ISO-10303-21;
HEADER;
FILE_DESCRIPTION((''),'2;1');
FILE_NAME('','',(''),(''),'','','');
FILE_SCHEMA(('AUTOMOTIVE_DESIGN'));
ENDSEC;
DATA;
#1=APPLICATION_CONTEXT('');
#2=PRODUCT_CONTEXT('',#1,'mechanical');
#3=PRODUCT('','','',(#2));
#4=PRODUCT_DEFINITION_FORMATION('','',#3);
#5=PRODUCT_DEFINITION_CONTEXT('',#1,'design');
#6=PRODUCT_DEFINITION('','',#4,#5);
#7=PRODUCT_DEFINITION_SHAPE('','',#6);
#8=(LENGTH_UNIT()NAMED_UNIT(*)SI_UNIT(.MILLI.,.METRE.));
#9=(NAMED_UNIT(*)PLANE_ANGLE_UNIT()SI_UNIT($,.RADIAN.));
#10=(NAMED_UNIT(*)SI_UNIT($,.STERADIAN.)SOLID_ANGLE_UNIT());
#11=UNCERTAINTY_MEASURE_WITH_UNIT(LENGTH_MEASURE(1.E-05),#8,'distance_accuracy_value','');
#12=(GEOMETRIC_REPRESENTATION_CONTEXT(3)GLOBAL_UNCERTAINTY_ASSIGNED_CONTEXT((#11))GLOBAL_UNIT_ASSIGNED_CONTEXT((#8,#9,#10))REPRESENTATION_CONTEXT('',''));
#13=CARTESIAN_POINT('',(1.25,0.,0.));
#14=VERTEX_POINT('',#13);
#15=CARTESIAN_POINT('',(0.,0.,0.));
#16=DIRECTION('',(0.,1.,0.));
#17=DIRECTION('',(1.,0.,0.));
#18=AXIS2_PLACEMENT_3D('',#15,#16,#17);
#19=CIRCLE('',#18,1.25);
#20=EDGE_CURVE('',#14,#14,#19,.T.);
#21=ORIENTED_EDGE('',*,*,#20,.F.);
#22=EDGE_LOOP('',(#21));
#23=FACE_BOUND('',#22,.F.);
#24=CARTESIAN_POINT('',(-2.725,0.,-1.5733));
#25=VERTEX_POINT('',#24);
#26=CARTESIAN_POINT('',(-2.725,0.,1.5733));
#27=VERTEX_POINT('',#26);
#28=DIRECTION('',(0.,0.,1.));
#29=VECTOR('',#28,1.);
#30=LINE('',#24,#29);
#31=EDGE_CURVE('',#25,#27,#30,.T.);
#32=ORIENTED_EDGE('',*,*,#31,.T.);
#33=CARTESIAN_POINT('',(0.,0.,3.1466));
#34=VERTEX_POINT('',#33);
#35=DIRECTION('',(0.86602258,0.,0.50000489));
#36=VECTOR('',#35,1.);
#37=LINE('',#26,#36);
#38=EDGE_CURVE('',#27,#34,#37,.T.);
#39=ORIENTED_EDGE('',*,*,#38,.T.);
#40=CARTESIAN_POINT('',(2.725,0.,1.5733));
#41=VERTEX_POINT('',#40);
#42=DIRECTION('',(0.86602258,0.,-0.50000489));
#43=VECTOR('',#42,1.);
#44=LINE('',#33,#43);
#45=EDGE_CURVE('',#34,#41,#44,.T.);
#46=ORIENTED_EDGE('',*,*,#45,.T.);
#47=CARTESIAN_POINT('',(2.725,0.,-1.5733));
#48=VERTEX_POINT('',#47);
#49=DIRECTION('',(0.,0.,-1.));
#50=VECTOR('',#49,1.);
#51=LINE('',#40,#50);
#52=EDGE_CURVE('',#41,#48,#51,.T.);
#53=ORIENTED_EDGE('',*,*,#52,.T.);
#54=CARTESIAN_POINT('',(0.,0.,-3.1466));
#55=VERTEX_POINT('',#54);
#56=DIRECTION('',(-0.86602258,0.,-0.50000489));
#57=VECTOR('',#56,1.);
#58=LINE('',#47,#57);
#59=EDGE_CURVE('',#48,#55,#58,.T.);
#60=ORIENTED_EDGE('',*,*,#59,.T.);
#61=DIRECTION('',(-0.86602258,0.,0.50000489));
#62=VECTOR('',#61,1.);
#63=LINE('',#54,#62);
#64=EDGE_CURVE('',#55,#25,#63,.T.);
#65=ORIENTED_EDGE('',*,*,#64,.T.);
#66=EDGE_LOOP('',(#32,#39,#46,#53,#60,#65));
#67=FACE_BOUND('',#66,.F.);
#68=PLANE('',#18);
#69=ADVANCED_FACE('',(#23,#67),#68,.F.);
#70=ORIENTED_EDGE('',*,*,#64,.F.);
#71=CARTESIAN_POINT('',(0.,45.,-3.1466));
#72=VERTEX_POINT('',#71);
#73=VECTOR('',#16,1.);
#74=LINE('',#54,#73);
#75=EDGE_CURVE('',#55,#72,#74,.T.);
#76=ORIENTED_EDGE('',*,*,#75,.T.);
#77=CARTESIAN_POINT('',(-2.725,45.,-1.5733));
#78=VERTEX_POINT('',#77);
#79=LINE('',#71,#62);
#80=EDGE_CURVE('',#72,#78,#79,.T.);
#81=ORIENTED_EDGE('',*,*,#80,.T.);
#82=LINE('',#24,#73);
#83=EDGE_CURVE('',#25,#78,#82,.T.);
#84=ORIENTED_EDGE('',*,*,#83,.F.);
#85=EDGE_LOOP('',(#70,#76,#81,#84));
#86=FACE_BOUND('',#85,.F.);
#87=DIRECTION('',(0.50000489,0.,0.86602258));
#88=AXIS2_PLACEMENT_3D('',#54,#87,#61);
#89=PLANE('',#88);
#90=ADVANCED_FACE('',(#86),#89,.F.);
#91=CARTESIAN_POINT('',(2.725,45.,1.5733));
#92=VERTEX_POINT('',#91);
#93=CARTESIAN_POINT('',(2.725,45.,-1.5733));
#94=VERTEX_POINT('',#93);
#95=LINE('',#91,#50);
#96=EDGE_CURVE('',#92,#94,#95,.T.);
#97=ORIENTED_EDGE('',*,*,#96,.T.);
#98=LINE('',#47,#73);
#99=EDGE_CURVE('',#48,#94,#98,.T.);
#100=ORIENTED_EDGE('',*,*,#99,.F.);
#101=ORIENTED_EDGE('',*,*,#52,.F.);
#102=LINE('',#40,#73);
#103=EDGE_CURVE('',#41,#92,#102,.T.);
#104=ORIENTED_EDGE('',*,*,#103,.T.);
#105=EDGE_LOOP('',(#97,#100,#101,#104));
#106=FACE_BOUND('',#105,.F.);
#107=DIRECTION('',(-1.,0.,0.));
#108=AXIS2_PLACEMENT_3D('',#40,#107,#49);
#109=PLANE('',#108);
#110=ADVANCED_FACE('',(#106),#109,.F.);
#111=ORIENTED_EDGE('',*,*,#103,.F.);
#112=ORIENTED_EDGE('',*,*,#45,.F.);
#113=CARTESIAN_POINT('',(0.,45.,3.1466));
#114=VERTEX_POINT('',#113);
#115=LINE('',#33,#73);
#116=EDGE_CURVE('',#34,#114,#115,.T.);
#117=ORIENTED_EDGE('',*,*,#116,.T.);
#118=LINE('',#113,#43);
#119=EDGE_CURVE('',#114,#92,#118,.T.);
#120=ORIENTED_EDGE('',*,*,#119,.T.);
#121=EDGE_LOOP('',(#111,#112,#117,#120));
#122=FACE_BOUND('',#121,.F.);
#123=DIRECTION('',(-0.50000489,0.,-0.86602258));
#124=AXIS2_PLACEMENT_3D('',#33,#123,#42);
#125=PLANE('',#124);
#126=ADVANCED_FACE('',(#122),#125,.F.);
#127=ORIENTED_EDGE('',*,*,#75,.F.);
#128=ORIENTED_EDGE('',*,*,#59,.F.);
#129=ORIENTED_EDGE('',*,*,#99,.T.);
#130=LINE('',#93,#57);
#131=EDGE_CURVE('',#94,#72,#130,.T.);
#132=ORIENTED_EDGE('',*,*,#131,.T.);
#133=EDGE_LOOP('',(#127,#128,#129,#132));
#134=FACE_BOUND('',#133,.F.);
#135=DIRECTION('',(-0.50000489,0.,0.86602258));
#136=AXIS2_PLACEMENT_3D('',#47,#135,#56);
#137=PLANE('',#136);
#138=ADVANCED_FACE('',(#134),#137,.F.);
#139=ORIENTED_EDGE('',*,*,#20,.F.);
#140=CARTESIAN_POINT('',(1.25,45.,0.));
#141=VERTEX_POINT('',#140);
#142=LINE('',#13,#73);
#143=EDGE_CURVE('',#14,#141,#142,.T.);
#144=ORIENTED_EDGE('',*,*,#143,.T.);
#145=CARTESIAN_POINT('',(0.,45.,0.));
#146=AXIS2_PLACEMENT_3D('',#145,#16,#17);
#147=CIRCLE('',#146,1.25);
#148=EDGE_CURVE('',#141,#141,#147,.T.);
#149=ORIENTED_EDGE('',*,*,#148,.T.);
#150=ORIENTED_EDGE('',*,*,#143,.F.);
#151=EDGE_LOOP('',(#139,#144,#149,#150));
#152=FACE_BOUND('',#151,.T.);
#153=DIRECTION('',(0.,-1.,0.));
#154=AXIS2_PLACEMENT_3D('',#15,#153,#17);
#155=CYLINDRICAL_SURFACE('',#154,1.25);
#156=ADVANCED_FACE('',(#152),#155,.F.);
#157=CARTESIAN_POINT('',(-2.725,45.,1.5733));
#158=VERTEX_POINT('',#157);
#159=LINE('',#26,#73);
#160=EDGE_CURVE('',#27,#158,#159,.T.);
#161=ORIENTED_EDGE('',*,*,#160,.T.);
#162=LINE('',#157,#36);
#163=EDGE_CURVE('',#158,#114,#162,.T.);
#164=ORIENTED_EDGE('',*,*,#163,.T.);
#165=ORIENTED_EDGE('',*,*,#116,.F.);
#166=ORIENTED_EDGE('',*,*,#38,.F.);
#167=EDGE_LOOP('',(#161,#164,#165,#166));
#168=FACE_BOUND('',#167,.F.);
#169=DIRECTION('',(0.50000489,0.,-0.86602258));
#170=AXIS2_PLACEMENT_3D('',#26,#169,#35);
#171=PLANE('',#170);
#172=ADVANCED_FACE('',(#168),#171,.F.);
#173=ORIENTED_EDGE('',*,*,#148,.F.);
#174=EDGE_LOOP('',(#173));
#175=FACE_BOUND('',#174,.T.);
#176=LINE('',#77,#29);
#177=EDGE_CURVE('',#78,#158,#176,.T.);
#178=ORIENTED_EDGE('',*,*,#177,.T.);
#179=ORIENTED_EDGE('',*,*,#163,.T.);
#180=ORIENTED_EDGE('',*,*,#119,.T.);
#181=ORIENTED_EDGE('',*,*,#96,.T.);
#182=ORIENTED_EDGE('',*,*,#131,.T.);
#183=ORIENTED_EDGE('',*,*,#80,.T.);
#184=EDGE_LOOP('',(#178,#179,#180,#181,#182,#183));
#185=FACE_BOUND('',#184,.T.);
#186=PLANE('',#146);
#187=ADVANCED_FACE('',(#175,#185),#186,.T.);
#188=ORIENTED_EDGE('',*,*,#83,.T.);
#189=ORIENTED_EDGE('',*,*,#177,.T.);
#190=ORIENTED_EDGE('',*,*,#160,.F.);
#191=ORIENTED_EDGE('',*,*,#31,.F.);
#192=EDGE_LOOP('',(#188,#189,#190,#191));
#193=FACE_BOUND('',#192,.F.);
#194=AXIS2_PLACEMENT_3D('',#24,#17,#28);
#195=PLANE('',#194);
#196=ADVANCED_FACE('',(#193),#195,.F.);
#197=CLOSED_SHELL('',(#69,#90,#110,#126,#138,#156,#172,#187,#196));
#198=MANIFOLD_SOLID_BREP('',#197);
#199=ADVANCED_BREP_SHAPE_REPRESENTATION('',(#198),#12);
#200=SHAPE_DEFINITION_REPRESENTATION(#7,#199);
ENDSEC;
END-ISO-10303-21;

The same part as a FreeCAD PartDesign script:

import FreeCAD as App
import Part
import Sketcher
from FreeCAD import Vector
Q = App.Units.Quantity

doc = App.newDocument("Part")
body = doc.addObject("PartDesign::Body", "Body")

# Sketch on XZ plane
sketch1 = body.newObject("Sketcher::SketchObject", "Sketch")
sketch1.AttachmentSupport = (doc.getObject("XZ_Plane"), [""])
sketch1.MapMode = "FlatFace"
sketch1.addGeometry(Part.LineSegment(Vector(2.7, 1.6, 0), Vector(2.7, -1.6, 0)), False)
sketch1.addGeometry(Part.LineSegment(Vector(2.7, -1.6, 0), Vector(0, -3.1, 0)), False)
sketch1.addGeometry(Part.LineSegment(Vector(0, -3.1, 0), Vector(-2.7, -1.6, 0)), False)
sketch1.addGeometry(Part.LineSegment(Vector(-2.7, -1.6, 0), Vector(-2.7, 1.6, 0)), False)
sketch1.addGeometry(Part.LineSegment(Vector(-2.7, 1.6, 0), Vector(0, 3.1, 0)), False)
sketch1.addGeometry(Part.LineSegment(Vector(0, 3.1, 0), Vector(2.7, 1.6, 0)), False)
sketch1.addGeometry(Part.Circle(Vector(0, 0, 0), Vector(0, 0, 1), 1.2), False)
sketch1.addConstraint(Sketcher.Constraint("Coincident", 0, 2, 1, 1))
sketch1.addConstraint(Sketcher.Constraint("Coincident", 1, 2, 2, 1))
sketch1.addConstraint(Sketcher.Constraint("Coincident", 2, 2, 3, 1))
sketch1.addConstraint(Sketcher.Constraint("Coincident", 3, 2, 4, 1))
sketch1.addConstraint(Sketcher.Constraint("Coincident", 4, 2, 5, 1))
sketch1.addConstraint(Sketcher.Constraint("Coincident", 5, 2, 0, 1))
sketch1.addConstraint(Sketcher.Constraint("Vertical", 0))
sketch1.addConstraint(Sketcher.Constraint("Vertical", 3))
sketch1.addConstraint(Sketcher.Constraint("Coincident", 6, 3, -1, 1))
sketch1.addConstraint(Sketcher.Constraint("Symmetric", 0, 2, 3, 2, -1, 1))
sketch1.addConstraint(Sketcher.Constraint("Symmetric", 1, 2, 4, 2, -1, 1))
sketch1.addConstraint(Sketcher.Constraint("PointOnObject", 1, 2, -2))
sketch1.addConstraint(Sketcher.Constraint("Parallel", 2, 5))
sketch1.addConstraint(Sketcher.Constraint("Horizontal", 0, 2, 2, 2))
sketch1.addConstraint(Sketcher.Constraint("Diameter", 6, 2.5))
sketch1.addConstraint(Sketcher.Constraint("Angle", 1, Q("-149.9997 deg")))
sketch1.addConstraint(Sketcher.Constraint("DistanceX", 2, 2, 0, 2, 5.45))
sketch1.addConstraint(Sketcher.Constraint("DistanceY", 1, 2, 3, 2, 4.72))
pad1 = body.newObject("PartDesign::Pad", "Pad")
pad1.Profile = sketch1
pad1.Length = 45
pad1.Reversed = True

doc.recompute()
